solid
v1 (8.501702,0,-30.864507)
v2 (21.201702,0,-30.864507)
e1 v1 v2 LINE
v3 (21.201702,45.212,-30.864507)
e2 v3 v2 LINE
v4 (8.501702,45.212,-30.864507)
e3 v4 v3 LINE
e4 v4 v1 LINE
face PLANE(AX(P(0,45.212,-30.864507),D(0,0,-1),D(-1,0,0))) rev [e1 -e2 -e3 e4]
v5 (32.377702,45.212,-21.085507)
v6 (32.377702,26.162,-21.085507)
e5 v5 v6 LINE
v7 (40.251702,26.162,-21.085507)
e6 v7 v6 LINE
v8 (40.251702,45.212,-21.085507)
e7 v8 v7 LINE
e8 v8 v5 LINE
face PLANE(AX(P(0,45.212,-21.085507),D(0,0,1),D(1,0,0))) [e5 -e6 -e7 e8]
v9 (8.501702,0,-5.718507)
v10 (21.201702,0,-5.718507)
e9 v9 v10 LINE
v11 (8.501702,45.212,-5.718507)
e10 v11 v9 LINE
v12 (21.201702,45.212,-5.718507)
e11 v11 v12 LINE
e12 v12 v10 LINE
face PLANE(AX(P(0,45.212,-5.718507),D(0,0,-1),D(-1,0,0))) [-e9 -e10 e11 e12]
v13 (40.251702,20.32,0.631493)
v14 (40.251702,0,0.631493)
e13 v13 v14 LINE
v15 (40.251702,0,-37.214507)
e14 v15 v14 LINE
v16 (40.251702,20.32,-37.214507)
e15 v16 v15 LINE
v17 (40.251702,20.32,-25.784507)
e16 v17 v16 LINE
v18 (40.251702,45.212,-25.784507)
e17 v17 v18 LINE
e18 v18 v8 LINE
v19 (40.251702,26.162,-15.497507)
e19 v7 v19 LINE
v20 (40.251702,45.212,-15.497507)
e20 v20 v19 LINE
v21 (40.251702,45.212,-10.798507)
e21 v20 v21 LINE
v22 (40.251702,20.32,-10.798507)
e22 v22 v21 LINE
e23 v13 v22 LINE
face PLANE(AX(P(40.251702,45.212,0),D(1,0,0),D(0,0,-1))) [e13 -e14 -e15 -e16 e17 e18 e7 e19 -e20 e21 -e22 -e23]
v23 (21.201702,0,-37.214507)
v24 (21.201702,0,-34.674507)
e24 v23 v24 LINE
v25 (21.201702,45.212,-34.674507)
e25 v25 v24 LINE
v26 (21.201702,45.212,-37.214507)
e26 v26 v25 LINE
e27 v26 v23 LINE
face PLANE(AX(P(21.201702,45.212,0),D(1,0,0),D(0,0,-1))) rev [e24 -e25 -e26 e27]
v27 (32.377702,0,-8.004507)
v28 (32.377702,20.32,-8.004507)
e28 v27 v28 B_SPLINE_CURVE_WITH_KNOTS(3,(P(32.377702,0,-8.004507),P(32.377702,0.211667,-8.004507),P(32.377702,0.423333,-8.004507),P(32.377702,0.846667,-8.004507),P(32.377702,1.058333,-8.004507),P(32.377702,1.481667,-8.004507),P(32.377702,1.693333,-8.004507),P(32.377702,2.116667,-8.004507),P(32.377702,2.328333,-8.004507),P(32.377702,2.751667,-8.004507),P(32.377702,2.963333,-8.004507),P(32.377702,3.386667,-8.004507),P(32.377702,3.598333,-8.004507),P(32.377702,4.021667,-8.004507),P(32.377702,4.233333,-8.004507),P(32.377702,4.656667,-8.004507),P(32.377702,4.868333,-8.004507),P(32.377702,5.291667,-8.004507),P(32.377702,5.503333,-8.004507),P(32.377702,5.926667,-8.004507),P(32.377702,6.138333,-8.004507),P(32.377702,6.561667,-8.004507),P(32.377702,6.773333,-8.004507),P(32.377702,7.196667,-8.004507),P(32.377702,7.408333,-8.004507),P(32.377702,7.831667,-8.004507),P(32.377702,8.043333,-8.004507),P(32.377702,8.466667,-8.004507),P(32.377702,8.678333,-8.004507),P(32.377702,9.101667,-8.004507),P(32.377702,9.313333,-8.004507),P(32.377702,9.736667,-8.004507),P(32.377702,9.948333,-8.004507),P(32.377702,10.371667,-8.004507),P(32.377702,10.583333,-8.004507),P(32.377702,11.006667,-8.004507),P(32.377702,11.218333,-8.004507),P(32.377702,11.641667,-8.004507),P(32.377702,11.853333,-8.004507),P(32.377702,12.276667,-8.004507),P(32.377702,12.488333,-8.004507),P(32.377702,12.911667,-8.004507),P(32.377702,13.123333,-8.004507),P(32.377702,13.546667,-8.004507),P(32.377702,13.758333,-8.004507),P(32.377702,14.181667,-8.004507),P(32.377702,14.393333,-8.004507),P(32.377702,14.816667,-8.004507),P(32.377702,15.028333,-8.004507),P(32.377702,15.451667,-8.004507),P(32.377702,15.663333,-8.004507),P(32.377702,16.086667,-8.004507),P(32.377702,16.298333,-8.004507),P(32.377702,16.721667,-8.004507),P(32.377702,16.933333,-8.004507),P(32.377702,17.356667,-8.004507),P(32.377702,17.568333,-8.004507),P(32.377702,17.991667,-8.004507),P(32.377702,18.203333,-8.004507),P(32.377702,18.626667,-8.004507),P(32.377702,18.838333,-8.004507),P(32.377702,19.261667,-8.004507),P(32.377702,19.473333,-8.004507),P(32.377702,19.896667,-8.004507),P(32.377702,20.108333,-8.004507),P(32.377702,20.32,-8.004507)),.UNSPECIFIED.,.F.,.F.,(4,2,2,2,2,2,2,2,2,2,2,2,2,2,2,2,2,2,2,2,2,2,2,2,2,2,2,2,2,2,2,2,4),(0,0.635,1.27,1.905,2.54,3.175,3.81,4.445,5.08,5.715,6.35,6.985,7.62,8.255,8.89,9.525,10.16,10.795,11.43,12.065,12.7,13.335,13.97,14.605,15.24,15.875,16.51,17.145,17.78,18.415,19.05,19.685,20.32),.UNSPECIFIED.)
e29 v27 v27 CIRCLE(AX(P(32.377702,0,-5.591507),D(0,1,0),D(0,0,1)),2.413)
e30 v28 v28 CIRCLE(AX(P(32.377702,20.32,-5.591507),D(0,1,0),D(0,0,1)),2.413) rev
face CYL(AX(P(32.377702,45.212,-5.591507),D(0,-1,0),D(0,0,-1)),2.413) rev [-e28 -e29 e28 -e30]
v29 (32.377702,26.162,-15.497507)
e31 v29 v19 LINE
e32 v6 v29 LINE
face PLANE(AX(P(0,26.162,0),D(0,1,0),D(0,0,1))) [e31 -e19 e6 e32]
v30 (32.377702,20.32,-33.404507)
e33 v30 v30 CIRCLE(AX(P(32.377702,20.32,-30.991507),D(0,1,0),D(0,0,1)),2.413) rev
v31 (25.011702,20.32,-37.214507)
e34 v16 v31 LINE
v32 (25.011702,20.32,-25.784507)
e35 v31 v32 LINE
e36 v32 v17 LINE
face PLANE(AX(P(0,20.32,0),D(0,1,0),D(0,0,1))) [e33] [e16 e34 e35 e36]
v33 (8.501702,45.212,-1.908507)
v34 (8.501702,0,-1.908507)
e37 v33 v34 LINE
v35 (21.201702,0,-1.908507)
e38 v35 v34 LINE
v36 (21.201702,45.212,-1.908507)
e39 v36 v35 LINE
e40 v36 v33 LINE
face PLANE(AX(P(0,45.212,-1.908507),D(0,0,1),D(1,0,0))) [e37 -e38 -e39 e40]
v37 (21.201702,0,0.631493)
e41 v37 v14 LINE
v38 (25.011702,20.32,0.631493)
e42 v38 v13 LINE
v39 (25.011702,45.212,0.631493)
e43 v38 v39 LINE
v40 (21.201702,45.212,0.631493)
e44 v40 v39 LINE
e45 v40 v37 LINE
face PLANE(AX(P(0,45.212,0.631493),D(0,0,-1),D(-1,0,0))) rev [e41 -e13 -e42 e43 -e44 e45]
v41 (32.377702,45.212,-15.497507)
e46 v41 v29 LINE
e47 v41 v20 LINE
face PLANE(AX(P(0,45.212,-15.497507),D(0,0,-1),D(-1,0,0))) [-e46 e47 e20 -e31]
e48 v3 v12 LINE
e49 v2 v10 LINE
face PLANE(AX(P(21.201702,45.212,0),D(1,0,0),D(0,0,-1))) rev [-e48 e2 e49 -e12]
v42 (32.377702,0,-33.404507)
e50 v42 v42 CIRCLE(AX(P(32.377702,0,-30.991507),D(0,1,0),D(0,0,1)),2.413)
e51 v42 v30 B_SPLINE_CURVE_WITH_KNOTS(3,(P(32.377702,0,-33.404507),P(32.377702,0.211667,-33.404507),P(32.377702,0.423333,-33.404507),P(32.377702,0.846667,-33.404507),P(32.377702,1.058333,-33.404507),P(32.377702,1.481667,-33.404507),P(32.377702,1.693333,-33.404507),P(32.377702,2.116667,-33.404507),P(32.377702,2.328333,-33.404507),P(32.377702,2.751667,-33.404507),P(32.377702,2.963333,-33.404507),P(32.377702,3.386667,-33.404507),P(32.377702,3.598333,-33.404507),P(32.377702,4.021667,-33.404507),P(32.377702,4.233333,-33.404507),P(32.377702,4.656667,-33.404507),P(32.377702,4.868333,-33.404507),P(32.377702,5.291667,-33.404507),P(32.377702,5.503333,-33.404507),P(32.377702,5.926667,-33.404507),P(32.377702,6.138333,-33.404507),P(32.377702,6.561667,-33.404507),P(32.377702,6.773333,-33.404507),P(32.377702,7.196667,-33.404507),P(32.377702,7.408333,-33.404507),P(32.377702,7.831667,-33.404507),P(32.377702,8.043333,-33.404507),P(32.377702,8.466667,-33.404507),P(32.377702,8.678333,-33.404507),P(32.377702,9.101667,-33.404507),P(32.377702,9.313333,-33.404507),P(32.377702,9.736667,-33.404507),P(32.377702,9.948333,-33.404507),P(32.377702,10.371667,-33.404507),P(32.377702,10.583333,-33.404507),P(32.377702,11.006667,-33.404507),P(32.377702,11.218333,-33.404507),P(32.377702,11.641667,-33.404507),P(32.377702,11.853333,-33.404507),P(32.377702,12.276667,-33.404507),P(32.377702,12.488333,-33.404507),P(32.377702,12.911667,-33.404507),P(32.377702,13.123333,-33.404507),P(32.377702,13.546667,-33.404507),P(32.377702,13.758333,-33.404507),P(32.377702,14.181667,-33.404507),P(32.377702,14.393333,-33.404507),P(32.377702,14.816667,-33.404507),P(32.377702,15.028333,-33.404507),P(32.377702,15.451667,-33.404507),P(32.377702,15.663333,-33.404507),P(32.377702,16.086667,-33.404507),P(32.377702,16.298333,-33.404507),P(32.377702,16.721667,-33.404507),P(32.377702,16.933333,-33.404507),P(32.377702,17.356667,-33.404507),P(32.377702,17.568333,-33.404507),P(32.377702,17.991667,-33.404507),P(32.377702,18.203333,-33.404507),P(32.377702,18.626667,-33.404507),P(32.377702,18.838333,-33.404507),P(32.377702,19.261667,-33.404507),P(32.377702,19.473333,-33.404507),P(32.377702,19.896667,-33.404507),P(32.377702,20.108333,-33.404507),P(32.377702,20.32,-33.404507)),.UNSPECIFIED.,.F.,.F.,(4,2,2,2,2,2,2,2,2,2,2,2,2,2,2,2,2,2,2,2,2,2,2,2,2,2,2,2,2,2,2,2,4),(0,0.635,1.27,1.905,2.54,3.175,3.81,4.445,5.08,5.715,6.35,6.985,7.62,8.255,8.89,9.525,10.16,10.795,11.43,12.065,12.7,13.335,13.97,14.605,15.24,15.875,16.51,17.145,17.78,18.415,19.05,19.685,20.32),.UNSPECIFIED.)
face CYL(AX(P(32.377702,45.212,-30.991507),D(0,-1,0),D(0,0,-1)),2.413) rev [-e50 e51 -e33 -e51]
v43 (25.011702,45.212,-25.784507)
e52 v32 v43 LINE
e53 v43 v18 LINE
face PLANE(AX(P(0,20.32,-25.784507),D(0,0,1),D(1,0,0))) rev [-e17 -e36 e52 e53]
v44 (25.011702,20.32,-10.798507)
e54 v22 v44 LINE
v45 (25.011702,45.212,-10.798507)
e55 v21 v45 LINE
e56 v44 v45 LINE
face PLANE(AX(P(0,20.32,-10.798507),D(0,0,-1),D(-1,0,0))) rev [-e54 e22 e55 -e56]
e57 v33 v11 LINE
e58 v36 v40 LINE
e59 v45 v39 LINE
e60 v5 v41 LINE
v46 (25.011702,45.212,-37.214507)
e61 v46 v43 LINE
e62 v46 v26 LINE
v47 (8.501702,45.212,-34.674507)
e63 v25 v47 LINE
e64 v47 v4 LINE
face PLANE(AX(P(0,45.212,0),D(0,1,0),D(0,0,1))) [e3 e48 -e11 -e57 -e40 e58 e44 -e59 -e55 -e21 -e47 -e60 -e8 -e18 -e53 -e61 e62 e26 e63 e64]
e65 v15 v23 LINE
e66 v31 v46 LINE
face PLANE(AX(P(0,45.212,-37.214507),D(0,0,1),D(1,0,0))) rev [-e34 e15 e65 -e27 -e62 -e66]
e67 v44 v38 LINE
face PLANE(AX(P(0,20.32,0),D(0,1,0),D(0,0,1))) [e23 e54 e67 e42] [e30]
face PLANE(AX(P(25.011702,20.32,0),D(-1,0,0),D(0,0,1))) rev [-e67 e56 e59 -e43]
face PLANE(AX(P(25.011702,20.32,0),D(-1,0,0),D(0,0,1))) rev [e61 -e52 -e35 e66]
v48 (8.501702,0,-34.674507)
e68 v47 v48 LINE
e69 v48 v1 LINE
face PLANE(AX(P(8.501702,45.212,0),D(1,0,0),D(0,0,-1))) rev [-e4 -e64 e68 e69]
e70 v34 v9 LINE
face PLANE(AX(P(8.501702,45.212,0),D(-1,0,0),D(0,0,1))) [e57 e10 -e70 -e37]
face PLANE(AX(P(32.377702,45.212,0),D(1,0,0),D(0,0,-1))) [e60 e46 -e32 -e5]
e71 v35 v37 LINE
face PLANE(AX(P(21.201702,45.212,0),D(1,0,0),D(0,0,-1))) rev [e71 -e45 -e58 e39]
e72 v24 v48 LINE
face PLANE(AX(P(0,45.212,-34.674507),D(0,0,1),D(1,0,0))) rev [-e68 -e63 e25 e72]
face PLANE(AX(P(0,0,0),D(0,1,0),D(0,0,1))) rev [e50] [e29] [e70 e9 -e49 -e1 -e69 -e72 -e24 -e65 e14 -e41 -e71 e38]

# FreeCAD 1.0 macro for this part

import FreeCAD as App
import Part
import Sketcher
Q = App.Units.Quantity

doc = App.newDocument("Part")
body = doc.addObject("PartDesign::Body", "Body")

# Sketch on XZ plane
sketch1 = body.newObject("Sketcher::SketchObject", "Sketch")
sketch1.AttachmentSupport = (doc.getObject("XZ_Plane"), [""])
sketch1.MapMode = "FlatFace"
sketch1.addGeometry([
    Part.LineSegment(App.Vector(40.3, -21.1, 0), App.Vector(40.3, -37.2, 0)),  # 0
    Part.LineSegment(App.Vector(40.3, -37.2, 0), App.Vector(21.2, -37.2, 0)),  # 1
    Part.LineSegment(App.Vector(21.2, -37.2, 0), App.Vector(21.2, -34.7, 0)),  # 2
    Part.LineSegment(App.Vector(21.2, -34.7, 0), App.Vector(8.5, -34.7, 0)),  # 3
    Part.LineSegment(App.Vector(8.5, -34.7, 0), App.Vector(8.5, -30.9, 0)),  # 4
    Part.LineSegment(App.Vector(8.5, -30.9, 0), App.Vector(21.2, -30.9, 0)),  # 5
    Part.LineSegment(App.Vector(21.2, -30.9, 0), App.Vector(21.2, -5.7, 0)),  # 6
    Part.LineSegment(App.Vector(21.2, -5.7, 0), App.Vector(8.5, -5.7, 0)),  # 7
    Part.LineSegment(App.Vector(8.5, -5.7, 0), App.Vector(8.5, -1.9, 0)),  # 8
    Part.LineSegment(App.Vector(8.5, -1.9, 0), App.Vector(21.2, -1.9, 0)),  # 9
    Part.LineSegment(App.Vector(21.2, -1.9, 0), App.Vector(21.2, 0.6, 0)),  # 10
    Part.LineSegment(App.Vector(21.2, 0.6, 0), App.Vector(40.3, 0.6, 0)),  # 11
    Part.LineSegment(App.Vector(40.3, 0.6, 0), App.Vector(40.3, -15.5, 0)),  # 12
    Part.LineSegment(App.Vector(40.3, -15.5, 0), App.Vector(32.4, -15.5, 0)),  # 13
    Part.LineSegment(App.Vector(32.4, -15.5, 0), App.Vector(32.4, -21.1, 0)),  # 14
    Part.LineSegment(App.Vector(32.4, -21.1, 0), App.Vector(40.3, -21.1, 0)),  # 15
    Part.Circle(App.Vector(32.4, -5.6, 0), App.Vector(0, 0, 1), 2.4),  # 16
    Part.Circle(App.Vector(32.4, -31, 0), App.Vector(0, 0, 1), 2.4),  # 17
], False)
sketch1.addConstraint([
    Sketcher.Constraint("Coincident", 0, 2, 1, 1),
    Sketcher.Constraint("Coincident", 1, 2, 2, 1),
    Sketcher.Constraint("Coincident", 2, 2, 3, 1),
    Sketcher.Constraint("Coincident", 3, 2, 4, 1),
    Sketcher.Constraint("Coincident", 4, 2, 5, 1),
    Sketcher.Constraint("Coincident", 5, 2, 6, 1),
    Sketcher.Constraint("Coincident", 6, 2, 7, 1),
    Sketcher.Constraint("Coincident", 7, 2, 8, 1),
    Sketcher.Constraint("Coincident", 8, 2, 9, 1),
    Sketcher.Constraint("Coincident", 9, 2, 10, 1),
    Sketcher.Constraint("Coincident", 10, 2, 11, 1),
    Sketcher.Constraint("Coincident", 11, 2, 12, 1),
    Sketcher.Constraint("Coincident", 12, 2, 13, 1),
    Sketcher.Constraint("Coincident", 13, 2, 14, 1),
    Sketcher.Constraint("Coincident", 14, 2, 15, 1),
    Sketcher.Constraint("Coincident", 15, 2, 0, 1),
    Sketcher.Constraint("Vertical", 0),
    Sketcher.Constraint("Horizontal", 1),
    Sketcher.Constraint("Vertical", 2),
    Sketcher.Constraint("Horizontal", 3),
    Sketcher.Constraint("Vertical", 4),
    Sketcher.Constraint("Horizontal", 5),
    Sketcher.Constraint("Vertical", 6),
    Sketcher.Constraint("Horizontal", 7),
    Sketcher.Constraint("Vertical", 8),
    Sketcher.Constraint("Horizontal", 9),
    Sketcher.Constraint("Vertical", 10),
    Sketcher.Constraint("Horizontal", 11),
    Sketcher.Constraint("Vertical", 12),
    Sketcher.Constraint("Horizontal", 13),
    Sketcher.Constraint("Vertical", 14),
    Sketcher.Constraint("Horizontal", 15),
    Sketcher.Constraint("Equal", 16, 17),
    Sketcher.Constraint("Vertical", 16, 3, 17, 3),
    Sketcher.Constraint("Vertical", 2, 2, 5, 2),
    Sketcher.Constraint("Vertical", 4, 2, 7, 2),
    Sketcher.Constraint("Vertical", 6, 2, 9, 2),
    Sketcher.Constraint("Vertical", 0, 2, 11, 2),
    Sketcher.Constraint("Vertical", 17, 3, 13, 2),
    Sketcher.Constraint("Equal", 4, 8),
    Sketcher.Constraint("Equal", 2, 10),
    Sketcher.Constraint("Equal", 0, 12),
    Sketcher.Constraint("Diameter", 16, Q("0.19 in")),
    Sketcher.Constraint("DistanceX", 3, 2, 3, 1, Q("0.5 in")),
    Sketcher.Constraint("DistanceY", 2, 1, 2, 2, Q("0.1 in")),
    Sketcher.Constraint("DistanceY", 17, 3, 16, 3, Q("1 in")),
    Sketcher.Constraint("DistanceX", 1, 2, 1, 1, Q("0.75 in")),
    Sketcher.Constraint("DistanceX", 13, 2, 13, 1, Q("0.31 in")),
    Sketcher.Constraint("DistanceY", 4, 1, 4, 2, Q("0.15 in")),
    Sketcher.Constraint("DistanceY", 6, 1, 6, 2, Q("0.99 in")),
    Sketcher.Constraint("DistanceY", 14, 2, 14, 1, Q("0.22 in")),
    Sketcher.Constraint("DistanceY", 12, 2, 16, 3, Q("0.39 in")),
    Sketcher.Constraint("DistanceX", -1, 1, 16, 3, Q("32.377702 mm")),
    Sketcher.Constraint("DistanceY", 16, 3, -1, 1, Q("5.591507 mm")),
])
pad1 = body.newObject("PartDesign::Pad", "Pad")
pad1.Profile = sketch1
pad1.Length = Q("1.78 in")
pad1.Reversed = True

# Sketch on XZ plane
sketch2 = body.newObject("Sketcher::SketchObject", "Sketch001")
sketch2.AttachmentSupport = (doc.getObject("XZ_Plane"), [""])
sketch2.MapMode = "FlatFace"
sketch2.addGeometry([
    Part.LineSegment(App.Vector(40, -21, 0), App.Vector(32, -21, 0)),
    Part.LineSegment(App.Vector(32, -21, 0), App.Vector(32, -15, 0)),
    Part.LineSegment(App.Vector(32, -15, 0), App.Vector(40, -15, 0)),
    Part.LineSegment(App.Vector(40, -15, 0), App.Vector(40, -21, 0)),
], False)
sketch2.addConstraint([
    Sketcher.Constraint("Coincident", 0, 2, 1, 1),
    Sketcher.Constraint("Coincident", 1, 2, 2, 1),
    Sketcher.Constraint("Coincident", 2, 2, 3, 1),
    Sketcher.Constraint("Coincident", 3, 2, 0, 1),
    Sketcher.Constraint("Horizontal", 0),
    Sketcher.Constraint("Vertical", 1),
    Sketcher.Constraint("Horizontal", 2),
    Sketcher.Constraint("Vertical", 3),
    Sketcher.Constraint("DistanceX", 0, 2, 0, 1, Q("0.31 in")),
    Sketcher.Constraint("DistanceY", 1, 1, 1, 2, Q("0.22 in")),
    Sketcher.Constraint("DistanceX", -1, 1, 0, 2, Q("32.377702 mm")),
    Sketcher.Constraint("DistanceY", 0, 2, -1, 1, Q("21.085507 mm")),
])
pad2 = body.newObject("PartDesign::Pad", "Pad001")
pad2.Profile = sketch2
pad2.Length = Q("1.03 in")
pad2.Reversed = True

# Sketch on XZ plane
sketch3 = body.newObject("Sketcher::SketchObject", "Sketch002")
sketch3.AttachmentSupport = (doc.getObject("XZ_Plane"), [""])
sketch3.MapMode = "FlatFace"
sketch3.AttachmentOffset = App.Placement(App.Vector(0, 0, -0.8 * 25.4), App.Rotation())
sketch3.addGeometry([
    Part.LineSegment(App.Vector(25, -10.8, 0), App.Vector(25, 0.6, 0)),  # 0
    Part.LineSegment(App.Vector(25, 0.6, 0), App.Vector(40.3, 0.6, 0)),  # 1
    Part.LineSegment(App.Vector(40.3, 0.6, 0), App.Vector(40.3, -10.8, 0)),  # 2
    Part.LineSegment(App.Vector(40.3, -10.8, 0), App.Vector(25, -10.8, 0)),  # 3
    Part.Circle(App.Vector(32.4, -5.6, 0), App.Vector(0, 0, 1), 2.4),  # 4
    Part.LineSegment(App.Vector(25, -37.2, 0), App.Vector(25, -25.8, 0)),  # 5
    Part.LineSegment(App.Vector(25, -25.8, 0), App.Vector(40.3, -25.8, 0)),  # 6
    Part.LineSegment(App.Vector(40.3, -25.8, 0), App.Vector(40.3, -37.2, 0)),  # 7
    Part.LineSegment(App.Vector(40.3, -37.2, 0), App.Vector(25, -37.2, 0)),  # 8
    Part.Circle(App.Vector(32.4, -31, 0), App.Vector(0, 0, 1), 2.4),  # 9
], False)
sketch3.addConstraint([
    Sketcher.Constraint("Coincident", 0, 2, 1, 1),
    Sketcher.Constraint("Coincident", 1, 2, 2, 1),
    Sketcher.Constraint("Coincident", 2, 2, 3, 1),
    Sketcher.Constraint("Coincident", 3, 2, 0, 1),
    Sketcher.Constraint("Coincident", 5, 2, 6, 1),
    Sketcher.Constraint("Coincident", 6, 2, 7, 1),
    Sketcher.Constraint("Coincident", 7, 2, 8, 1),
    Sketcher.Constraint("Coincident", 8, 2, 5, 1),
    Sketcher.Constraint("Vertical", 0),
    Sketcher.Constraint("Horizontal", 1),
    Sketcher.Constraint("Vertical", 2),
    Sketcher.Constraint("Horizontal", 3),
    Sketcher.Constraint("Vertical", 5),
    Sketcher.Constraint("Horizontal", 6),
    Sketcher.Constraint("Vertical", 7),
    Sketcher.Constraint("Horizontal", 8),
    Sketcher.Constraint("Equal", 4, 9),
    Sketcher.Constraint("Vertical", 4, 3, 9, 3),
    Sketcher.Constraint("Vertical", 3, 2, 5, 2),
    Sketcher.Constraint("Vertical", 2, 2, 6, 2),
    Sketcher.Constraint("Equal", 2, 5),
    Sketcher.Constraint("Diameter", 4, Q("0.19 in")),
    Sketcher.Constraint("DistanceX", 1, 1, 1, 2, Q("0.6 in")),
    Sketcher.Constraint("DistanceY", 9, 3, 4, 3, Q("1 in")),
    Sketcher.Constraint("DistanceY", 0, 1, 0, 2, Q("0.45 in")),
    Sketcher.Constraint("DistanceX", 0, 2, 4, 3, Q("0.29 in")),
    Sketcher.Constraint("DistanceY", 5, 2, 3, 2, Q("0.59 in")),
    Sketcher.Constraint("DistanceY", 4, 3, 0, 2, Q("0.245 in")),
    Sketcher.Constraint("DistanceX", -1, 1, 4, 3, Q("32.377702 mm")),
    Sketcher.Constraint("DistanceY", 4, 3, -1, 1, Q("5.591507 mm")),
])
pocket1 = body.newObject("PartDesign::Pocket", "Pocket")
pocket1.Profile = sketch3
pocket1.Length = Q("0.98 in")

doc.recompute()
